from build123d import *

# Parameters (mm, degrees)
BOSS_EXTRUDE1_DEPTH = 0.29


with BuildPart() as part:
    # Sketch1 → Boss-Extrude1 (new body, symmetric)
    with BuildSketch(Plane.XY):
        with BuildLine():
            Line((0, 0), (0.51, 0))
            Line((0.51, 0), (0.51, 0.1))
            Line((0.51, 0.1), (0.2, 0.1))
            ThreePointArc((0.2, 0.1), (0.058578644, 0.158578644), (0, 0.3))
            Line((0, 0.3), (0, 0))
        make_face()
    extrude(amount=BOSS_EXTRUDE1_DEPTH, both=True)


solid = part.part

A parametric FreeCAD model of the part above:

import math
import FreeCAD as App
import Part
import Sketcher
from FreeCAD import Vector
Q = App.Units.Quantity

doc = App.newDocument("Part")
body = doc.addObject("PartDesign::Body", "Body")

# Sketch on XY plane
sketch1 = body.newObject("Sketcher::SketchObject", "Sketch")
sketch1.AttachmentSupport = (doc.getObject("XY_Plane"), [""])
sketch1.MapMode = "FlatFace"
sketch1.addGeometry([
    Part.LineSegment(Vector(0, 0, 0), Vector(0.51, 0, 0)),  # 0
    Part.LineSegment(Vector(0.51, 0, 0), Vector(0.51, 0.1, 0)),  # 1
    Part.LineSegment(Vector(0.51, 0.1, 0), Vector(0.2, 0.1, 0)),  # 2
    Part.ArcOfCircle(Part.Circle(Vector(0.2, 0.3, 0), Vector(0, 0, 1), 0.2), math.radians(-180), math.radians(-90)),  # 3
    Part.LineSegment(Vector(0, 0.3, 0), Vector(0, 0, 0)),  # 4
], False)
sketch1.addConstraint([
    Sketcher.Constraint("Coincident", 0, 2, 1, 1),
    Sketcher.Constraint("Coincident", 1, 2, 2, 1),
    Sketcher.Constraint("Tangent", 2, 2, 3, 2),
    Sketcher.Constraint("Tangent", 3, 1, 4, 1),
    Sketcher.Constraint("Coincident", 4, 2, 0, 1),
    Sketcher.Constraint("Horizontal", 0),
    Sketcher.Constraint("Vertical", 1),
    Sketcher.Constraint("Horizontal", 2),
    Sketcher.Constraint("Vertical", 4),
    Sketcher.Constraint("Coincident", 4, 2, -1, 1),
    Sketcher.Constraint("Radius", 3, Q("0.2 mm")),
    Sketcher.Constraint("DistanceY", 1, 1, 1, 2, Q("0.1 mm")),
    Sketcher.Constraint("DistanceX", 0, 1, 0, 2, Q("0.51 mm")),
])
pad1 = body.newObject("PartDesign::Pad", "Pad")
pad1.Profile = sketch1
pad1.Length = 0.58
pad1.Midplane = True

doc.recompute()
